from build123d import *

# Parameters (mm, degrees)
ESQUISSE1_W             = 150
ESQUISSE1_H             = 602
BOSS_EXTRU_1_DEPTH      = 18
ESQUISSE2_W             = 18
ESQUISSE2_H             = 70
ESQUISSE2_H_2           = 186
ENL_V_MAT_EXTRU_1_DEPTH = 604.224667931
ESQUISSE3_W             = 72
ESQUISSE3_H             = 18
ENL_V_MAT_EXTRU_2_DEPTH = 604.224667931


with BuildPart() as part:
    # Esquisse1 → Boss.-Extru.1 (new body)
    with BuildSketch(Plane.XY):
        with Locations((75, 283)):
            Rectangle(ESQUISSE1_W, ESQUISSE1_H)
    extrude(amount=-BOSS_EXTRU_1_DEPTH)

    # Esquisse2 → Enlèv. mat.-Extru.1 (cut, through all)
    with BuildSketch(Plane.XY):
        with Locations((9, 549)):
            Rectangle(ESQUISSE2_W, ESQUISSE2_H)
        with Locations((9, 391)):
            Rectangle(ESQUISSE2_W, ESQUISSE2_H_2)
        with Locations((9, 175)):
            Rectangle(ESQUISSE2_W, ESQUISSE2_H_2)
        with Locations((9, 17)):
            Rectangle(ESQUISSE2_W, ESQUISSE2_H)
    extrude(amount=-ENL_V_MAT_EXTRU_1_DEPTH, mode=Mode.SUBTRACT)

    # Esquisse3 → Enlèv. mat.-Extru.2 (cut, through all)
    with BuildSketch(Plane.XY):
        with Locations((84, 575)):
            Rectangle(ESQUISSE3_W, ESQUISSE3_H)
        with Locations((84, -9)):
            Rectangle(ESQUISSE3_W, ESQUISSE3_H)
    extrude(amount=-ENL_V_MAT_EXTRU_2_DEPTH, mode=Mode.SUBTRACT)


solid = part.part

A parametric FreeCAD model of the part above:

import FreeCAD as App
import Part
import Sketcher

V = App.Vector


def add_polygon(sketch, points):
    """Adds a closed chain of lines whose ends are joined by coincident constraints."""
    first, n = sketch.GeometryCount, len(points)
    for a, b in zip(points, points[1:] + points[:1]):
        sketch.addGeometry(Part.LineSegment(App.Vector(*a, 0), App.Vector(*b, 0)), False)
    for i in range(n):
        sketch.addConstraint(Sketcher.Constraint("Coincident", first + i, 2, first + (i + 1) % n, 1))

doc = App.newDocument("Part")
body = doc.addObject("PartDesign::Body", "Body")

sketch1 = body.newObject("Sketcher::SketchObject", "Sketch")
sketch1.AttachmentSupport = (doc.getObject("XY_Plane"), [""])
sketch1.MapMode = "FlatFace"
add_polygon(sketch1, [(0, 584), (0, -18), (150, -18), (150, 584)])
sketch1.addConstraint([
    Sketcher.Constraint("Vertical", 0),
    Sketcher.Constraint("Horizontal", 1),
    Sketcher.Constraint("Vertical", 2),
    Sketcher.Constraint("Horizontal", 3),
    Sketcher.Constraint("PointOnObject", 0, 2, -2),
    Sketcher.Constraint("DistanceX", 1, 1, 1, 2, 150.0),
    Sketcher.Constraint("DistanceY", 0, 2, 0, 1, 602.0),
    Sketcher.Constraint("DistanceY", 0, 2, -1, 1, 18.0),
])
pad1 = body.newObject("PartDesign::Pad", "Pad")
pad1.Profile = sketch1
pad1.Length = 18
pad1.Reversed = True

sketch2 = body.newObject("Sketcher::SketchObject", "Sketch001")
sketch2.AttachmentSupport = (doc.getObject("XY_Plane"), [""])
sketch2.MapMode = "FlatFace"
add_polygon(sketch2, [(0, 584), (0, 514), (18, 514), (18, 584)])
add_polygon(sketch2, [(0, 484), (0, 298), (18, 298), (18, 484)])
add_polygon(sketch2, [(0, 268), (0, 82), (18, 82), (18, 268)])
add_polygon(sketch2, [(0, 52), (0, -18), (18, -18), (18, 52)])
sketch2.addConstraint([
    Sketcher.Constraint("Vertical", 0),
    Sketcher.Constraint("Horizontal", 1),
    Sketcher.Constraint("Vertical", 2),
    Sketcher.Constraint("Horizontal", 3),
    Sketcher.Constraint("Vertical", 4),
    Sketcher.Constraint("Horizontal", 5),
    Sketcher.Constraint("Vertical", 6),
    Sketcher.Constraint("Horizontal", 7),
    Sketcher.Constraint("Vertical", 8),
    Sketcher.Constraint("Horizontal", 9),
    Sketcher.Constraint("Vertical", 10),
    Sketcher.Constraint("Horizontal", 11),
    Sketcher.Constraint("Vertical", 12),
    Sketcher.Constraint("Horizontal", 13),
    Sketcher.Constraint("Vertical", 14),
    Sketcher.Constraint("Horizontal", 15),
    Sketcher.Constraint("PointOnObject", 0, 2, -2),
    Sketcher.Constraint("PointOnObject", 4, 2, -2),
    Sketcher.Constraint("PointOnObject", 8, 2, -2),
    Sketcher.Constraint("PointOnObject", 12, 2, -2),
    Sketcher.Constraint("Vertical", 2, 2, 5, 2),
    Sketcher.Constraint("Vertical", 6, 2, 9, 2),
    Sketcher.Constraint("Vertical", 10, 2, 13, 2),
    Sketcher.Constraint("Equal", 6, 8),
    Sketcher.Constraint("Equal", 2, 12),
    Sketcher.Constraint("DistanceX", 1, 1, 1, 2, 18.0),
    Sketcher.Constraint("DistanceY", 0, 2, 0, 1, 70.0),
    Sketcher.Constraint("DistanceY", 4, 2, 4, 1, 186.0),
    Sketcher.Constraint("DistanceY", -1, 1, 0, 2, 514.0),
    Sketcher.Constraint("DistanceY", -1, 1, 4, 2, 298.0),
    Sketcher.Constraint("DistanceY", -1, 1, 8, 2, 82.0),
    Sketcher.Constraint("DistanceY", 12, 2, -1, 1, 18.0),
])
pocket1 = body.newObject("PartDesign::Pocket", "Pocket")
pocket1.Profile = sketch2
pocket1.Type = "ThroughAll"

sketch3 = body.newObject("Sketcher::SketchObject", "Sketch002")
sketch3.AttachmentSupport = (doc.getObject("XY_Plane"), [""])
sketch3.MapMode = "FlatFace"
add_polygon(sketch3, [(48, 584), (48, 566), (120, 566), (120, 584)])
add_polygon(sketch3, [(48, 0), (48, -18), (120, -18), (120, 0)])
sketch3.addConstraint([
    Sketcher.Constraint("Vertical", 0),
    Sketcher.Constraint("Horizontal", 1),
    Sketcher.Constraint("Vertical", 2),
    Sketcher.Constraint("Horizontal", 3),
    Sketcher.Constraint("Vertical", 4),
    Sketcher.Constraint("Horizontal", 5),
    Sketcher.Constraint("Vertical", 6),
    Sketcher.Constraint("Horizontal", 7),
    Sketcher.Constraint("PointOnObject", 6, 2, -1),
    Sketcher.Constraint("Vertical", 3, 2, 4, 2),
    Sketcher.Constraint("Vertical", 2, 2, 5, 2),
    Sketcher.Constraint("Equal", 2, 4),
    Sketcher.Constraint("DistanceX", 1, 1, 1, 2, 72.0),
    Sketcher.Constraint("DistanceY", 0, 2, 0, 1, 18.0),
    Sketcher.Constraint("DistanceX", -1, 1, 0, 2, 48.0),
    Sketcher.Constraint("DistanceY", -1, 1, 0, 2, 566.0),
])
pocket2 = body.newObject("PartDesign::Pocket", "Pocket001")
pocket2.Profile = sketch3
pocket2.Type = "ThroughAll"

doc.recompute()
